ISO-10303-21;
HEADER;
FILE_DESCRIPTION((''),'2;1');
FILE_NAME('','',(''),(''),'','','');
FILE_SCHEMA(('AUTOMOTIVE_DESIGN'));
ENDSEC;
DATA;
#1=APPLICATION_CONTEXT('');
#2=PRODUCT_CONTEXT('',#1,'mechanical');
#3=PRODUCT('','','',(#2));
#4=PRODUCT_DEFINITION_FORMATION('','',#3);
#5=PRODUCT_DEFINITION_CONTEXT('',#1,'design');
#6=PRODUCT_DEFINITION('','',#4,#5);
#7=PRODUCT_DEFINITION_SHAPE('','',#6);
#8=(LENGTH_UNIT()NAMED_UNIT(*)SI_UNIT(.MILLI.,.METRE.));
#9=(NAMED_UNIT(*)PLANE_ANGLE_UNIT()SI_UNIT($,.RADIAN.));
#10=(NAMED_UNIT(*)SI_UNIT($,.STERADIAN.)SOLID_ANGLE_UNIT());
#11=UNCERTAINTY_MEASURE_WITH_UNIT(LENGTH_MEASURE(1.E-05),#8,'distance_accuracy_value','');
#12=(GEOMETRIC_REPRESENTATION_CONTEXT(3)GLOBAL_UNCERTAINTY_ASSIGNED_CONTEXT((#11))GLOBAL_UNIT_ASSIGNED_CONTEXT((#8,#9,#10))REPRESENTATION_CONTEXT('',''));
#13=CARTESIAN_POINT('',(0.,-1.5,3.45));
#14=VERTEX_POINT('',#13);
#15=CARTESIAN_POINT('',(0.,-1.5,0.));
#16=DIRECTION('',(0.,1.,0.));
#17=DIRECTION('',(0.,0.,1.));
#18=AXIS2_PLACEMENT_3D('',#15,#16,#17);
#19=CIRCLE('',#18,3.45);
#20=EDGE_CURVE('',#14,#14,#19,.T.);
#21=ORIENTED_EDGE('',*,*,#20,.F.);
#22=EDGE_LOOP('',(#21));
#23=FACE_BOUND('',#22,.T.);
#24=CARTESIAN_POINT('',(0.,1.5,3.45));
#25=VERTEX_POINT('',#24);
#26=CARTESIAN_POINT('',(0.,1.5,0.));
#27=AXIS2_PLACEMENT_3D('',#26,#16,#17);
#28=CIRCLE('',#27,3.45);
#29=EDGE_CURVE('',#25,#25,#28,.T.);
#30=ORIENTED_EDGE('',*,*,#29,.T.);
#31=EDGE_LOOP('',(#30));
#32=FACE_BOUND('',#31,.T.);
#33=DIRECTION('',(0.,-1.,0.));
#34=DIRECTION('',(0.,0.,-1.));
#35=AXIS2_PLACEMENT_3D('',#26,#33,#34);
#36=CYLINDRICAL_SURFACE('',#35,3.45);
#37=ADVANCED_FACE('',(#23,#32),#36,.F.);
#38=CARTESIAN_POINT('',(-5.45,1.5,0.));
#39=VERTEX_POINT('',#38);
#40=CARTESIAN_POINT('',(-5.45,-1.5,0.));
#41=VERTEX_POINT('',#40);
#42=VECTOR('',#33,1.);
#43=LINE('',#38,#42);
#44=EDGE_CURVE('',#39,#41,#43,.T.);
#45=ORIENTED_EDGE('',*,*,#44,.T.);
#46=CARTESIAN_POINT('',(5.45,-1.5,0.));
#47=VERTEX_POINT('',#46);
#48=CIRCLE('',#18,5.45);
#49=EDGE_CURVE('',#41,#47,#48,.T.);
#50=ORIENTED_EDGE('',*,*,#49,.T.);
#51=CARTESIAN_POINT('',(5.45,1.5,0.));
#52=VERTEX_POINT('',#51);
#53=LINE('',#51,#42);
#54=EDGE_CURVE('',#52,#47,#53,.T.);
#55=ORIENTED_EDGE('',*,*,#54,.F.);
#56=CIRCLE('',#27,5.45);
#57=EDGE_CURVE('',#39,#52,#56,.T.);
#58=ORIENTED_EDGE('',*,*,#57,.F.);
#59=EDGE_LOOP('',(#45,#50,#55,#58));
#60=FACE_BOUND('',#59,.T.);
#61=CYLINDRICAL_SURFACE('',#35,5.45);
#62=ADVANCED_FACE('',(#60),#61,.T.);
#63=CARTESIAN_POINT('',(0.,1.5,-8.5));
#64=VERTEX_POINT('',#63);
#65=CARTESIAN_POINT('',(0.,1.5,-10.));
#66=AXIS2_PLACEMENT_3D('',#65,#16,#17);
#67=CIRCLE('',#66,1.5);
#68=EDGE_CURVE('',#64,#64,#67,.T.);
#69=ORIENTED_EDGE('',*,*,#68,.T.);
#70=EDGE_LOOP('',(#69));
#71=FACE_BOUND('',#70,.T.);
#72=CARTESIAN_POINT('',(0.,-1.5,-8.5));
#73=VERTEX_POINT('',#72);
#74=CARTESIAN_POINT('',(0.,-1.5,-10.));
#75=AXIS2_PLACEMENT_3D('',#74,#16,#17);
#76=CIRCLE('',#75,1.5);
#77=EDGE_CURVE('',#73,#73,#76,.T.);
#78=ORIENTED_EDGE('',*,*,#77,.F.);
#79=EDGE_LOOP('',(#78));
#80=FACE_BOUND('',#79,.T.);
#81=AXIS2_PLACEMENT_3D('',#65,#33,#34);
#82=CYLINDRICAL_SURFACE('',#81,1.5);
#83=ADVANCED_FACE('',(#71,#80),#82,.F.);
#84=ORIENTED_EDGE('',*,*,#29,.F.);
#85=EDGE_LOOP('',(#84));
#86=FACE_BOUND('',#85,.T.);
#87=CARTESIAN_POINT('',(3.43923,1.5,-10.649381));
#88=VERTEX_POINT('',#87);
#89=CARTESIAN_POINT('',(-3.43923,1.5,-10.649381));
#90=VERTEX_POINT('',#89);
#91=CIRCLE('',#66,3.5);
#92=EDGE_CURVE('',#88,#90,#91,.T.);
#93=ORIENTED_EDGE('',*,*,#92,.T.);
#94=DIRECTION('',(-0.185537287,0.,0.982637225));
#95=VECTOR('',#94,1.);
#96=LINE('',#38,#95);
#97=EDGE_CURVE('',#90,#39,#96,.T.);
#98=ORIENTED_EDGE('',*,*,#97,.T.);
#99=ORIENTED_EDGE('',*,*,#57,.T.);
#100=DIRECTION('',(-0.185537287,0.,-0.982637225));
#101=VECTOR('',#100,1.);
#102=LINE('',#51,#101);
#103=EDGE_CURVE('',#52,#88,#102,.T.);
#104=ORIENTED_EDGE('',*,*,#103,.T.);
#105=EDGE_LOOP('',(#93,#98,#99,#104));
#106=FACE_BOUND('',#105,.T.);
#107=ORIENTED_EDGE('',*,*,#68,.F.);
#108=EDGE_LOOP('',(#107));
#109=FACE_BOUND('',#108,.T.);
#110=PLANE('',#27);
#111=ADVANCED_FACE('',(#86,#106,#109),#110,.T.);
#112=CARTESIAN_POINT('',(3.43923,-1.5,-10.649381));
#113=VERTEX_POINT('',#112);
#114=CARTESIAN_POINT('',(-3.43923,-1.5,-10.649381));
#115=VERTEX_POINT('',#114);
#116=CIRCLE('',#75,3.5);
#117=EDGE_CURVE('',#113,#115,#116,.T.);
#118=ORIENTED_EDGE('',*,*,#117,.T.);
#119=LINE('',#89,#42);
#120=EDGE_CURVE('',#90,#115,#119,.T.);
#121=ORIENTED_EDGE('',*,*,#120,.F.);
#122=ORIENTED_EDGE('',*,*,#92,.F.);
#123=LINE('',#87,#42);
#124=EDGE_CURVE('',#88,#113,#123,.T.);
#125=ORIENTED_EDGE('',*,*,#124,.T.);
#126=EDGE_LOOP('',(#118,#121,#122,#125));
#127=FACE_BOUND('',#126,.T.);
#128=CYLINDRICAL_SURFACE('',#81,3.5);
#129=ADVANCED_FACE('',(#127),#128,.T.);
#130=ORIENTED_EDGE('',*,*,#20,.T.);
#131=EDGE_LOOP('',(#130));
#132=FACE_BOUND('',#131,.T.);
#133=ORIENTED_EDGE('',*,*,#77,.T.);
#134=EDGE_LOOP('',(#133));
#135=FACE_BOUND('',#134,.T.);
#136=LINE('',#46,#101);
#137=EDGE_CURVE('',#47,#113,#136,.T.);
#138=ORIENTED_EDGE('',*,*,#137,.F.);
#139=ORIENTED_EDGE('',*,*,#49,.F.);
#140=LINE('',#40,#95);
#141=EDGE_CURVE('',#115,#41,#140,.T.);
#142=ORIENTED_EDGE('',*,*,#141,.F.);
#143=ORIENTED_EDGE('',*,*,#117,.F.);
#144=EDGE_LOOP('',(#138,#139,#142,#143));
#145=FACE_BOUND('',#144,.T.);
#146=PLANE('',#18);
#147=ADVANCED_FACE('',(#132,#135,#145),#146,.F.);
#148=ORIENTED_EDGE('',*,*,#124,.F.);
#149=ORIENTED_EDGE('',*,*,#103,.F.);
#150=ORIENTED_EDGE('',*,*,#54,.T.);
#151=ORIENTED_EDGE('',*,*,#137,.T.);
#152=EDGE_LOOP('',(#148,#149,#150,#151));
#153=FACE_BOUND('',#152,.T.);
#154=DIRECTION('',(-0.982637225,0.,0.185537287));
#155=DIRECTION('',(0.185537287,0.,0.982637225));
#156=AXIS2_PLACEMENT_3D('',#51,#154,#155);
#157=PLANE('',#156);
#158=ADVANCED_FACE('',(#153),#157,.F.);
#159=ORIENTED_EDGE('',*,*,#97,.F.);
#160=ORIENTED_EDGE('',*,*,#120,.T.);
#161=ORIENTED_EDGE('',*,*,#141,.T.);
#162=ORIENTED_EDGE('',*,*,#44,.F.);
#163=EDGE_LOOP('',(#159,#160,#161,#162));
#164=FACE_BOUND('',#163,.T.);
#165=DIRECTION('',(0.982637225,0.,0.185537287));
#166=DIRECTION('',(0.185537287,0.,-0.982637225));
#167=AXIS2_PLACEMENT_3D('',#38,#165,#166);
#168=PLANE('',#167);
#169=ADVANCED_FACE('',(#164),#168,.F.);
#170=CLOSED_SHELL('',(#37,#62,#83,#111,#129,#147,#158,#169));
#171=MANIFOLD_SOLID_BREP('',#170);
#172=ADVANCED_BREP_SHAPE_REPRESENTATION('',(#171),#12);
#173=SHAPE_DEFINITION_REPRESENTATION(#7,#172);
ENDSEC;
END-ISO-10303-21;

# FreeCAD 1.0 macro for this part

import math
import FreeCAD as App
import Part
import Sketcher
from FreeCAD import Vector
Q = App.Units.Quantity

doc = App.newDocument("Part")
body = doc.addObject("PartDesign::Body", "Body")

# Sketch on XZ plane
sketch1 = doc.addObject("Sketcher::SketchObject", "Sketch")
body.addObject(sketch1)
sketch1.AttachmentSupport = (doc.XZ_Plane, [""])
sketch1.MapMode = "FlatFace"
sketch1.addGeometry(Part.LineSegment(Vector(-3.4, -10.6, 0), Vector(-5.5, 0, 0)), False)
sketch1.addGeometry(Part.ArcOfCircle(Part.Circle(Vector(0, 0, 0), Vector(0, 0, 1), 5.5), math.radians(0), math.radians(180)), False)
sketch1.addGeometry(Part.LineSegment(Vector(5.5, 0, 0), Vector(3.4, -10.6, 0)), False)
sketch1.addGeometry(Part.ArcOfCircle(Part.Circle(Vector(0, -10, 0), Vector(0, 0, 1), 3.5), math.radians(-169), math.radians(-11)), False)
sketch1.addGeometry(Part.Circle(Vector(0, 0, 0), Vector(0, 0, 1), 3.5), False)
sketch1.addGeometry(Part.Circle(Vector(0, -10, 0), Vector(0, 0, 1), 1.5), False)
sketch1.addConstraint(Sketcher.Constraint("Coincident", 0, 2, 1, 2))
sketch1.addConstraint(Sketcher.Constraint("Coincident", 1, 1, 2, 1))
sketch1.addConstraint(Sketcher.Constraint("Tangent", 2, 2, 3, 2))
sketch1.addConstraint(Sketcher.Constraint("Tangent", 3, 1, 0, 1))
sketch1.addConstraint(Sketcher.Constraint("Coincident", 1, 3, -1, 1))
sketch1.addConstraint(Sketcher.Constraint("Coincident", 4, 3, -1, 1))
sketch1.addConstraint(Sketcher.Constraint("Coincident", 5, 3, 3, 3))
sketch1.addConstraint(Sketcher.Constraint("Symmetric", 2, 2, 3, 1, -2))
sketch1.addConstraint(Sketcher.Constraint("PointOnObject", 0, 2, -1))
sketch1.addConstraint(Sketcher.Constraint("Diameter", 5, Q("3 mm")))
sketch1.addConstraint(Sketcher.Constraint("Diameter", 4, Q("6.9 mm")))
sketch1.addConstraint(Sketcher.Constraint("Radius", 3, Q("3.5 mm")))
sketch1.addConstraint(Sketcher.Constraint("Radius", 1, Q("5.45 mm")))
sketch1.addConstraint(Sketcher.Constraint("DistanceY", 3, 3, -1, 1, Q("10 mm")))
pad1 = doc.addObject("PartDesign::Pad", "Pad")
body.addObject(pad1)
pad1.Profile = sketch1
pad1.Length = 3
pad1.Midplane = True

doc.recompute()
